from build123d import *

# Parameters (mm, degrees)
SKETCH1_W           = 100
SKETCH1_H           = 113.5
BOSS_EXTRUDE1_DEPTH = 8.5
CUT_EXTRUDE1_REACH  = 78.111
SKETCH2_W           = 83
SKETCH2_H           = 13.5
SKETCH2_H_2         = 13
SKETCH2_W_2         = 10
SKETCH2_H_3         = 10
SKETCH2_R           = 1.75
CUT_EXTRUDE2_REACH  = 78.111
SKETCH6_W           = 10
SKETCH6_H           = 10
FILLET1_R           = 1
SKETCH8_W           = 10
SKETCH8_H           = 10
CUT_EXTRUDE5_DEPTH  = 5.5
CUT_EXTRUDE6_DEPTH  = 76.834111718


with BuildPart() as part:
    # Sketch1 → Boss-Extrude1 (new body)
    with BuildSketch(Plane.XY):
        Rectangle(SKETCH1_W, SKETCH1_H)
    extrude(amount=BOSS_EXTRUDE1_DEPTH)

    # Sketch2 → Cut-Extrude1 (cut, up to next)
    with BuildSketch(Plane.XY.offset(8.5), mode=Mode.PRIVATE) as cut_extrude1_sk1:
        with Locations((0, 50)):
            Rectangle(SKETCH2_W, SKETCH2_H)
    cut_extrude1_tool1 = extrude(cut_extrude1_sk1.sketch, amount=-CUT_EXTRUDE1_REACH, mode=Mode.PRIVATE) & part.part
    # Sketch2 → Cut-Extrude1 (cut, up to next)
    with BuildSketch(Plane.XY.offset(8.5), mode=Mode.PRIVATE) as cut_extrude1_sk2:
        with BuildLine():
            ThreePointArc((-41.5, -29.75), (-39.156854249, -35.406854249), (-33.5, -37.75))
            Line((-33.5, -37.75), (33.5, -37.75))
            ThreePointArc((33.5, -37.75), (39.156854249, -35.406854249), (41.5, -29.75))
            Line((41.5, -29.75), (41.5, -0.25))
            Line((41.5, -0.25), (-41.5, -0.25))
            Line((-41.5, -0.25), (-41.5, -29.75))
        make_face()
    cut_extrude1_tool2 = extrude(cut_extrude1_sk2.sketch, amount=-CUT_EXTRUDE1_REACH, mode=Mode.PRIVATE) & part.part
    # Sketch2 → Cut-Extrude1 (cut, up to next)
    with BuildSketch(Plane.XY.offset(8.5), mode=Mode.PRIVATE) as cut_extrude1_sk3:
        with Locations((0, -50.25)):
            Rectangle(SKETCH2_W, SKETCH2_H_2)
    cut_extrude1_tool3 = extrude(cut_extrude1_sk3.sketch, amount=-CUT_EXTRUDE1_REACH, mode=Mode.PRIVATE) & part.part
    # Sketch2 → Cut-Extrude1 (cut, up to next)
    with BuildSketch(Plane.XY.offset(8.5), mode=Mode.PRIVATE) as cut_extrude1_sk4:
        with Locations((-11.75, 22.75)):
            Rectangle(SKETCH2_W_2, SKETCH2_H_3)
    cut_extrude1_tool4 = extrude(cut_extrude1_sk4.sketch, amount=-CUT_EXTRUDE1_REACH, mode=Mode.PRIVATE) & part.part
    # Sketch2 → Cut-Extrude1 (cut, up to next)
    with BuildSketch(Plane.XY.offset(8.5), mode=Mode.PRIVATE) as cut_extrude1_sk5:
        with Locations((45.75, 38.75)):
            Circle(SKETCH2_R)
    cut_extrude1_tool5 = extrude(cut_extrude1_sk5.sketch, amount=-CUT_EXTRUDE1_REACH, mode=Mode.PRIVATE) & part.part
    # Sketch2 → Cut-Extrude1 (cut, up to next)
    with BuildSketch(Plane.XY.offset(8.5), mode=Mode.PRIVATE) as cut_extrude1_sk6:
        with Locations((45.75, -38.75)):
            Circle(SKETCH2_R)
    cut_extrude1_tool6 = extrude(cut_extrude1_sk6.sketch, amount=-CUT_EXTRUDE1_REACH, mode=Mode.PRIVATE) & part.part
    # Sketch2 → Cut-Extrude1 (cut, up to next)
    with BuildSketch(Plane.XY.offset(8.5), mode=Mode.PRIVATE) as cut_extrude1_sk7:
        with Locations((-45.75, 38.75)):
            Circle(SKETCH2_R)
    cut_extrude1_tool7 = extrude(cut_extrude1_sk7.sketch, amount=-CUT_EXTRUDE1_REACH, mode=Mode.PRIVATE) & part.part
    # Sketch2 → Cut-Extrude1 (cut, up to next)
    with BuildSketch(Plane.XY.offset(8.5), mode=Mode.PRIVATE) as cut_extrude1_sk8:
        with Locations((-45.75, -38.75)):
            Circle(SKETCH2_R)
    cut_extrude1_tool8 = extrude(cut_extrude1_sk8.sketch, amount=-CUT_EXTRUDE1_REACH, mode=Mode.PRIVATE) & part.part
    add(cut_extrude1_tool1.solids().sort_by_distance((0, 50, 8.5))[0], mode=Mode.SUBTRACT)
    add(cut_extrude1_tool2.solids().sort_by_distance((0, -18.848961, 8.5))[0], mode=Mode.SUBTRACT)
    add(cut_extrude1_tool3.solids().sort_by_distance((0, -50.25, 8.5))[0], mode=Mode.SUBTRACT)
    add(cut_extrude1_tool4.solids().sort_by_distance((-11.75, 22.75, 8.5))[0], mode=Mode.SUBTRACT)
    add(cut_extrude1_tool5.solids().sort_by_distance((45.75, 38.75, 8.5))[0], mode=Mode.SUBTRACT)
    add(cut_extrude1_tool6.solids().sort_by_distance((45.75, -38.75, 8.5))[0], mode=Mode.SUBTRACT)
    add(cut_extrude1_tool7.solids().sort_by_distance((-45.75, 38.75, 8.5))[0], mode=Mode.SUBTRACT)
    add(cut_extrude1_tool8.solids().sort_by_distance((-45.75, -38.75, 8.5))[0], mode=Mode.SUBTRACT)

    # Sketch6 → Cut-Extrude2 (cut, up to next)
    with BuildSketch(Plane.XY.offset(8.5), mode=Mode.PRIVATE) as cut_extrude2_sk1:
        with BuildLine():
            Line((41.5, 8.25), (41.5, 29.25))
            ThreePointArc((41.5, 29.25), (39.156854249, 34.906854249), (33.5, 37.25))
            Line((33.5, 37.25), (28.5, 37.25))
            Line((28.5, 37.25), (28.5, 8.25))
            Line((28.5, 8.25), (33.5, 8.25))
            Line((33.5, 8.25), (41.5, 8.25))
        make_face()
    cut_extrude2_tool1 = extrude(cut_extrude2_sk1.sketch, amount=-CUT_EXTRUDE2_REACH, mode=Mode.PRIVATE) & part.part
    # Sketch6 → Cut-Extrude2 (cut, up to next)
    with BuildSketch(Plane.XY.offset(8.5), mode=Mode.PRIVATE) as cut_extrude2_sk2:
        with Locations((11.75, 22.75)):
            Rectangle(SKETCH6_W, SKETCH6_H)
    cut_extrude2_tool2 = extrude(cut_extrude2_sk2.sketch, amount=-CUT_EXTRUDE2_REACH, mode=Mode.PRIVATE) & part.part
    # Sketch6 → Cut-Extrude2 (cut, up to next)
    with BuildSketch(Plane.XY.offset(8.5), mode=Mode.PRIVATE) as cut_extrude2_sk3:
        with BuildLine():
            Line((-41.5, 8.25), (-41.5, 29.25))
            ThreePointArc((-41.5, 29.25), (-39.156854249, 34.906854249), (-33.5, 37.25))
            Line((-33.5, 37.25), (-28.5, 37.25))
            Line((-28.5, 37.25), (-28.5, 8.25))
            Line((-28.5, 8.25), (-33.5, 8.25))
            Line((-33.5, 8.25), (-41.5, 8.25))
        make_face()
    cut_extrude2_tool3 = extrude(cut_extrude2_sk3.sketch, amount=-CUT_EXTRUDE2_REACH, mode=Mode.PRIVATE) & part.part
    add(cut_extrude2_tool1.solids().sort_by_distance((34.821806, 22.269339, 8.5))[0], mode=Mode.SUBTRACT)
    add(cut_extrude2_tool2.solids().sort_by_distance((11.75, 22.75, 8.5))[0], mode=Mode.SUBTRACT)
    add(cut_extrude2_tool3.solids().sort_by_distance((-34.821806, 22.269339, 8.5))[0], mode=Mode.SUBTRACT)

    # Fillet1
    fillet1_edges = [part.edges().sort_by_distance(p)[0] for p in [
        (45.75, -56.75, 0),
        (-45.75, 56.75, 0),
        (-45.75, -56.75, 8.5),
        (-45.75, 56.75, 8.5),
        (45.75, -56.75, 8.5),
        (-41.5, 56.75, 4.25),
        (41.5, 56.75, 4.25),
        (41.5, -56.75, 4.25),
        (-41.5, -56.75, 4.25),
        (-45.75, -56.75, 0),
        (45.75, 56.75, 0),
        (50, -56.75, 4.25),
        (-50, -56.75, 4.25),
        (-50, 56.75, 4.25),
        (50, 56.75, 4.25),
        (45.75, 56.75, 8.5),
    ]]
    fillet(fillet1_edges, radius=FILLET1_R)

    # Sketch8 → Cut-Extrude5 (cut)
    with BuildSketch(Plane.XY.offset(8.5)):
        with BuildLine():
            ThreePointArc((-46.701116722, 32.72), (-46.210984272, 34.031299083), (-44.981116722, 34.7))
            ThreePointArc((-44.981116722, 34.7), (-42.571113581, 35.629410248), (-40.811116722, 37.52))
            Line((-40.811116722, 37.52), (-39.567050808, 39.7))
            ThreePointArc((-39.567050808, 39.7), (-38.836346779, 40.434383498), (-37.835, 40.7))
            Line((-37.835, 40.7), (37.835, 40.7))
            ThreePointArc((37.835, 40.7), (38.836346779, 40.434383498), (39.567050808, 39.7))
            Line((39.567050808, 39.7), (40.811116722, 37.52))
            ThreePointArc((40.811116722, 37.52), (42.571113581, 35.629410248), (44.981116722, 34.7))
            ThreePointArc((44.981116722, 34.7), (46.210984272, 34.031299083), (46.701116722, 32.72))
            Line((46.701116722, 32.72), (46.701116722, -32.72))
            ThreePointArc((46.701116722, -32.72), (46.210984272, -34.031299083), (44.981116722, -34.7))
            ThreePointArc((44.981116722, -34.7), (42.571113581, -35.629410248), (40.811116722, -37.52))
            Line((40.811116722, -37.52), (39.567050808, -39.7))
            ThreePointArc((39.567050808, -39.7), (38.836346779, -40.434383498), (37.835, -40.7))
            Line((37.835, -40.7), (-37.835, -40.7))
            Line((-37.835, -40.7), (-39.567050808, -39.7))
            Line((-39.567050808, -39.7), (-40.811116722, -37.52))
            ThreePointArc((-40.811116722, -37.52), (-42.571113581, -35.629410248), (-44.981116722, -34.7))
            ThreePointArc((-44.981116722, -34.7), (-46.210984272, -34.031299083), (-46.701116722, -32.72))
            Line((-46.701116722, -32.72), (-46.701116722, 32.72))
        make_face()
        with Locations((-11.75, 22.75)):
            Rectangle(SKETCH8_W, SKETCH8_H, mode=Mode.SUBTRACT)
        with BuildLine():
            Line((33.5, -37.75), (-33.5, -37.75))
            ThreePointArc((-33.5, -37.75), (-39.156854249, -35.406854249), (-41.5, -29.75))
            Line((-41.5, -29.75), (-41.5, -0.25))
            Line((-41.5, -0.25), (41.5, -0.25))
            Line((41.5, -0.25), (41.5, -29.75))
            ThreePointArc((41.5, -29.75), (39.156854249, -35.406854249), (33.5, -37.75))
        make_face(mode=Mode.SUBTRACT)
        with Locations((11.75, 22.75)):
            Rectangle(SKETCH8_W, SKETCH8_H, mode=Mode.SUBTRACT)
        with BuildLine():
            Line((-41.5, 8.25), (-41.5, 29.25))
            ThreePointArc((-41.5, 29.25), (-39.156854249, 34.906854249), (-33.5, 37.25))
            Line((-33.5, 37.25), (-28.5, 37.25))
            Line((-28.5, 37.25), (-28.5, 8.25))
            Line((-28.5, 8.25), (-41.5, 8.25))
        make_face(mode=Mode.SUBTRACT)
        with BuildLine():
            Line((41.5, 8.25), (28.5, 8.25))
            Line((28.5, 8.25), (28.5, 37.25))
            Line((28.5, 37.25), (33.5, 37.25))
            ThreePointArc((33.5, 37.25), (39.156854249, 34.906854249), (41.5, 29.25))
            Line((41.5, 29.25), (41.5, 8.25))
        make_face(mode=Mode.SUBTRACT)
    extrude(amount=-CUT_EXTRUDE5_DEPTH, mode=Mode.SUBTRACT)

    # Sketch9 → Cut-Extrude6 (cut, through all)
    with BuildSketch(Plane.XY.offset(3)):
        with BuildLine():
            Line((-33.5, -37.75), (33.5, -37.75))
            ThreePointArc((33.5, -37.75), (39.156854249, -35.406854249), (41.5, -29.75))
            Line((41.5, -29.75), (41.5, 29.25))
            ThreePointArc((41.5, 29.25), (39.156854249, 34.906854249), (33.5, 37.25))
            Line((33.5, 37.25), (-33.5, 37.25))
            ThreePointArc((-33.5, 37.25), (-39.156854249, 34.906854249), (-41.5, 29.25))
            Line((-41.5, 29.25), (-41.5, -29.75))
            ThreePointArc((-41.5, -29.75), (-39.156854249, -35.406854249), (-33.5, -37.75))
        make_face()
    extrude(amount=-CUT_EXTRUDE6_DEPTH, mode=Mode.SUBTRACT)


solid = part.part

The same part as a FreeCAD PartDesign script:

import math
import FreeCAD as App
import Part
import Sketcher
Q = App.Units.Quantity


def edges_at(feature, points):
    """Names of the edges that pass closest to the given points."""
    edges = feature.Shape.Edges
    near = lambda p: min(range(len(edges)), key=lambda i: edges[i].distToShape(Part.Vertex(*p))[0])
    return sorted({f"Edge{near(p) + 1}" for p in points})


def add_polygon(sketch, points):
    """Adds a closed chain of lines whose ends are joined by coincident constraints."""
    first, n = sketch.GeometryCount, len(points)
    for a, b in zip(points, points[1:] + points[:1]):
        sketch.addGeometry(Part.LineSegment(App.Vector(*a, 0), App.Vector(*b, 0)), False)
    for i in range(n):
        sketch.addConstraint(Sketcher.Constraint("Coincident", first + i, 2, first + (i + 1) % n, 1))

doc = App.newDocument("Part")
params = doc.addObject("Spreadsheet::Sheet", "Params")
for row, (alias, value) in enumerate([
    ("sketch1_width", "100 mm"),
    ("sketch1_height", "113.5 mm"),
    ("pad1_length", "8.5 mm"),
    ("sketch2_width", "83 mm"),
    ("sketch2_height", "13.5 mm"),
    ("sketch3_radius", "8 mm"),
    ("sketch3_width", "67 mm"),
    ("sketch3_height", "29.5 mm"),
    ("sketch4_width", "83 mm"),
    ("sketch4_height", "13 mm"),
    ("sketch5_width", "10 mm"),
    ("sketch6_diameter", "3.5 mm"),
    ("sketch7_diameter", "3.5 mm"),
    ("sketch8_diameter", "3.5 mm"),
    ("sketch9_diameter", "3.5 mm"),
    ("sketch10_radius", "8 mm"),
    ("sketch10_width", "5 mm"),
    ("sketch10_height", "21 mm"),
    ("sketch11_width", "10 mm"),
    ("sketch12_radius", "8 mm"),
    ("sketch12_width", "13 mm"),
    ("sketch12_height", "21 mm"),
    ("fillet_radius", "1 mm"),
    ("sketch13_radius", "2 mm"),
    ("sketch13_radius2", "8 mm"),
    ("sketch13_width", "67 mm"),
    ("sketch13_width2", "13 mm"),
    ("sketch13_width3", "10 mm"),
    ("pocket12_length", "5.5 mm"),
    ("sketch14_radius", "8 mm"),
    ("sketch14_width", "67 mm"),
    ("sketch14_height", "59 mm"),
], start=1):
    params.set(f"A{row}", alias)
    params.set(f"B{row}", "=" + value)
    params.setAlias(f"B{row}", alias)

body = doc.addObject("PartDesign::Body", "Body")

sketch1 = body.newObject("Sketcher::SketchObject", "Sketch")
sketch1.AttachmentSupport = (doc.getObject("XY_Plane"), [""])
sketch1.MapMode = "FlatFace"
add_polygon(sketch1, [(-50, 57), (-50, -57), (50, -57), (50, 57)])
sketch1.addConstraint([
    Sketcher.Constraint("Vertical", 0),
    Sketcher.Constraint("Horizontal", 1),
    Sketcher.Constraint("Vertical", 2),
    Sketcher.Constraint("Horizontal", 3),
    Sketcher.Constraint("Symmetric", 0, 2, 2, 2, -1, 1),
    Sketcher.Constraint("DistanceX", 1, 1, 1, 2, 100.0),
    Sketcher.Constraint("DistanceY", 0, 2, 0, 1, 113.5),
])
sketch1.setExpression("Constraints[9]", "Params.sketch1_width")
sketch1.setExpression("Constraints[10]", "Params.sketch1_height")
pad1 = body.newObject("PartDesign::Pad", "Pad")
pad1.Profile = sketch1
pad1.setExpression("Length", "Params.pad1_length")

sketch2 = body.newObject("Sketcher::SketchObject", "Sketch001")
sketch2.AttachmentSupport = (doc.getObject("XY_Plane"), [""])
sketch2.MapMode = "FlatFace"
sketch2.AttachmentOffset = App.Placement(App.Vector(0, 0, 8.5), App.Rotation())
add_polygon(sketch2, [(-42, 57), (-42, 43), (42, 43), (42, 57)])
sketch2.addConstraint([
    Sketcher.Constraint("Vertical", 0),
    Sketcher.Constraint("Horizontal", 1),
    Sketcher.Constraint("Vertical", 2),
    Sketcher.Constraint("Horizontal", 3),
    Sketcher.Constraint("DistanceX", 1, 1, 1, 2, 83.0),
    Sketcher.Constraint("DistanceY", 0, 2, 0, 1, 13.5),
    Sketcher.Constraint("DistanceX", 0, 2, -1, 1, 41.5),
    Sketcher.Constraint("DistanceY", -1, 1, 0, 2, 43.25),
])
sketch2.setExpression("Constraints[8]", "Params.sketch2_width")
sketch2.setExpression("Constraints[9]", "Params.sketch2_height")
pocket1 = body.newObject("PartDesign::Pocket", "Pocket")
pocket1.Profile = sketch2
pocket1.Type = "UpToFirst"

sketch3 = body.newObject("Sketcher::SketchObject", "Sketch002")
sketch3.AttachmentSupport = (doc.getObject("XY_Plane"), [""])
sketch3.MapMode = "FlatFace"
sketch3.AttachmentOffset = App.Placement(App.Vector(0, 0, 8.5), App.Rotation())
sketch3.addGeometry([
    Part.ArcOfCircle(Part.Circle(App.Vector(-33, -30, 0), App.Vector(0, 0, 1), 8), math.radians(-180), math.radians(-90)),
    Part.LineSegment(App.Vector(-34, -38, 0), App.Vector(34, -38, 0)),
    Part.ArcOfCircle(Part.Circle(App.Vector(33, -30, 0), App.Vector(0, 0, 1), 8), math.radians(-90), math.radians(0)),
    Part.LineSegment(App.Vector(42, -30, 0), App.Vector(42, 0, 0)),
    Part.LineSegment(App.Vector(42, 0, 0), App.Vector(-42, 0, 0)),
    Part.LineSegment(App.Vector(-42, 0, 0), App.Vector(-42, -30, 0)),
], False)
sketch3.addConstraint([
    Sketcher.Constraint("Tangent", 0, 2, 1, 1),
    Sketcher.Constraint("Tangent", 1, 2, 2, 1),
    Sketcher.Constraint("Tangent", 2, 2, 3, 1),
    Sketcher.Constraint("Coincident", 3, 2, 4, 1),
    Sketcher.Constraint("Coincident", 4, 2, 5, 1),
    Sketcher.Constraint("Tangent", 5, 2, 0, 1),
    Sketcher.Constraint("Horizontal", 1),
    Sketcher.Constraint("Vertical", 3),
    Sketcher.Constraint("Horizontal", 4),
    Sketcher.Constraint("Vertical", 5),
    Sketcher.Constraint("Equal", 0, 2),
    Sketcher.Constraint("Radius", 0, 8.0),
    Sketcher.Constraint("DistanceX", 1, 1, 1, 2, 67.0),
    Sketcher.Constraint("DistanceY", 3, 1, 3, 2, 29.5),
    Sketcher.Constraint("DistanceX", 0, 3, -1, 1, 33.5),
    Sketcher.Constraint("DistanceY", 0, 3, -1, 1, 29.75),
])
sketch3.setExpression("Constraints[11]", "Params.sketch3_radius")
sketch3.setExpression("Constraints[12]", "Params.sketch3_width")
sketch3.setExpression("Constraints[13]", "Params.sketch3_height")
pocket2 = body.newObject("PartDesign::Pocket", "Pocket001")
pocket2.Profile = sketch3
pocket2.Type = "UpToFirst"

sketch4 = body.newObject("Sketcher::SketchObject", "Sketch003")
sketch4.AttachmentSupport = (doc.getObject("XY_Plane"), [""])
sketch4.MapMode = "FlatFace"
sketch4.AttachmentOffset = App.Placement(App.Vector(0, 0, 8.5), App.Rotation())
add_polygon(sketch4, [(-42, -44), (-42, -57), (42, -57), (42, -44)])
sketch4.addConstraint([
    Sketcher.Constraint("Vertical", 0),
    Sketcher.Constraint("Horizontal", 1),
    Sketcher.Constraint("Vertical", 2),
    Sketcher.Constraint("Horizontal", 3),
    Sketcher.Constraint("DistanceX", 1, 1, 1, 2, 83.0),
    Sketcher.Constraint("DistanceY", 0, 2, 0, 1, 13.0),
    Sketcher.Constraint("DistanceX", 0, 2, -1, 1, 41.5),
    Sketcher.Constraint("DistanceY", 0, 2, -1, 1, 56.75),
])
sketch4.setExpression("Constraints[8]", "Params.sketch4_width")
sketch4.setExpression("Constraints[9]", "Params.sketch4_height")
pocket3 = body.newObject("PartDesign::Pocket", "Pocket002")
pocket3.Profile = sketch4
pocket3.Type = "UpToFirst"

sketch5 = body.newObject("Sketcher::SketchObject", "Sketch004")
sketch5.AttachmentSupport = (doc.getObject("XY_Plane"), [""])
sketch5.MapMode = "FlatFace"
sketch5.AttachmentOffset = App.Placement(App.Vector(0, 0, 8.5), App.Rotation())
add_polygon(sketch5, [(-17, 28), (-17, 18), (-7, 18), (-7, 28)])
sketch5.addConstraint([
    Sketcher.Constraint("Vertical", 0),
    Sketcher.Constraint("Horizontal", 1),
    Sketcher.Constraint("Vertical", 2),
    Sketcher.Constraint("Horizontal", 3),
    Sketcher.Constraint("Equal", 3, 0),
    Sketcher.Constraint("DistanceX", 1, 1, 1, 2, 10.0),
    Sketcher.Constraint("DistanceX", 0, 2, -1, 1, 16.75),
    Sketcher.Constraint("DistanceY", -1, 1, 0, 2, 17.75),
])
sketch5.setExpression("Constraints[9]", "Params.sketch5_width")
pocket4 = body.newObject("PartDesign::Pocket", "Pocket003")
pocket4.Profile = sketch5
pocket4.Type = "UpToFirst"

sketch6 = body.newObject("Sketcher::SketchObject", "Sketch005")
sketch6.AttachmentSupport = (doc.getObject("XY_Plane"), [""])
sketch6.MapMode = "FlatFace"
sketch6.AttachmentOffset = App.Placement(App.Vector(0, 0, 8.5), App.Rotation())
sketch6.addGeometry(Part.Circle(App.Vector(45.8, 38.8, 0), App.Vector(0, 0, 1), 1.8), False)
sketch6.addConstraint([
    Sketcher.Constraint("Diameter", 0, 3.5),
    Sketcher.Constraint("DistanceX", -1, 1, 0, 3, 45.75),
    Sketcher.Constraint("DistanceY", -1, 1, 0, 3, 38.75),
])
sketch6.setExpression("Constraints[0]", "Params.sketch6_diameter")
pocket5 = body.newObject("PartDesign::Pocket", "Pocket004")
pocket5.Profile = sketch6
pocket5.Type = "UpToFirst"

sketch7 = body.newObject("Sketcher::SketchObject", "Sketch006")
sketch7.AttachmentSupport = (doc.getObject("XY_Plane"), [""])
sketch7.MapMode = "FlatFace"
sketch7.AttachmentOffset = App.Placement(App.Vector(0, 0, 8.5), App.Rotation())
sketch7.addGeometry(Part.Circle(App.Vector(45.8, -38.8, 0), App.Vector(0, 0, 1), 1.8), False)
sketch7.addConstraint([
    Sketcher.Constraint("Diameter", 0, 3.5),
    Sketcher.Constraint("DistanceX", -1, 1, 0, 3, 45.75),
    Sketcher.Constraint("DistanceY", 0, 3, -1, 1, 38.75),
])
sketch7.setExpression("Constraints[0]", "Params.sketch7_diameter")
pocket6 = body.newObject("PartDesign::Pocket", "Pocket005")
pocket6.Profile = sketch7
pocket6.Type = "UpToFirst"

sketch8 = body.newObject("Sketcher::SketchObject", "Sketch007")
sketch8.AttachmentSupport = (doc.getObject("XY_Plane"), [""])
sketch8.MapMode = "FlatFace"
sketch8.AttachmentOffset = App.Placement(App.Vector(0, 0, 8.5), App.Rotation())
sketch8.addGeometry(Part.Circle(App.Vector(-45.8, 38.8, 0), App.Vector(0, 0, 1), 1.8), False)
sketch8.addConstraint([
    Sketcher.Constraint("Diameter", 0, 3.5),
    Sketcher.Constraint("DistanceX", 0, 3, -1, 1, 45.75),
    Sketcher.Constraint("DistanceY", -1, 1, 0, 3, 38.75),
])
sketch8.setExpression("Constraints[0]", "Params.sketch8_diameter")
pocket7 = body.newObject("PartDesign::Pocket", "Pocket006")
pocket7.Profile = sketch8
pocket7.Type = "UpToFirst"

sketch9 = body.newObject("Sketcher::SketchObject", "Sketch008")
sketch9.AttachmentSupport = (doc.getObject("XY_Plane"), [""])
sketch9.MapMode = "FlatFace"
sketch9.AttachmentOffset = App.Placement(App.Vector(0, 0, 8.5), App.Rotation())
sketch9.addGeometry(Part.Circle(App.Vector(-45.8, -38.8, 0), App.Vector(0, 0, 1), 1.8), False)
sketch9.addConstraint([
    Sketcher.Constraint("Diameter", 0, 3.5),
    Sketcher.Constraint("DistanceX", 0, 3, -1, 1, 45.75),
    Sketcher.Constraint("DistanceY", 0, 3, -1, 1, 38.75),
])
sketch9.setExpression("Constraints[0]", "Params.sketch9_diameter")
pocket8 = body.newObject("PartDesign::Pocket", "Pocket007")
pocket8.Profile = sketch9
pocket8.Type = "UpToFirst"

sketch10 = body.newObject("Sketcher::SketchObject", "Sketch009")
sketch10.AttachmentSupport = (doc.getObject("XY_Plane"), [""])
sketch10.MapMode = "FlatFace"
sketch10.AttachmentOffset = App.Placement(App.Vector(0, 0, 8.5), App.Rotation())
sketch10.addGeometry([
    Part.LineSegment(App.Vector(42, 8, 0), App.Vector(42, 29, 0)),
    Part.ArcOfCircle(Part.Circle(App.Vector(33, 29, 0), App.Vector(0, 0, 1), 8), math.radians(0), math.radians(90)),
    Part.LineSegment(App.Vector(34, 37, 0), App.Vector(28, 37, 0)),
    Part.LineSegment(App.Vector(28, 37, 0), App.Vector(28, 8, 0)),
    Part.LineSegment(App.Vector(28, 8, 0), App.Vector(42, 8, 0)),
], False)
sketch10.addConstraint([
    Sketcher.Constraint("Tangent", 0, 2, 1, 1),
    Sketcher.Constraint("Tangent", 1, 2, 2, 1),
    Sketcher.Constraint("Coincident", 2, 2, 3, 1),
    Sketcher.Constraint("Coincident", 3, 2, 4, 1),
    Sketcher.Constraint("Coincident", 4, 2, 0, 1),
    Sketcher.Constraint("Vertical", 0),
    Sketcher.Constraint("Horizontal", 2),
    Sketcher.Constraint("Vertical", 3),
    Sketcher.Constraint("Horizontal", 4),
    Sketcher.Constraint("Radius", 1, 8.0),
    Sketcher.Constraint("DistanceX", 2, 2, 2, 1, 5.0),
    Sketcher.Constraint("DistanceY", 0, 1, 0, 2, 21.0),
    Sketcher.Constraint("DistanceX", -1, 1, 1, 3, 33.5),
    Sketcher.Constraint("DistanceY", -1, 1, 1, 3, 29.25),
])
sketch10.setExpression("Constraints[9]", "Params.sketch10_radius")
sketch10.setExpression("Constraints[10]", "Params.sketch10_width")
sketch10.setExpression("Constraints[11]", "Params.sketch10_height")
pocket9 = body.newObject("PartDesign::Pocket", "Pocket008")
pocket9.Profile = sketch10
pocket9.Type = "UpToFirst"

sketch11 = body.newObject("Sketcher::SketchObject", "Sketch010")
sketch11.AttachmentSupport = (doc.getObject("XY_Plane"), [""])
sketch11.MapMode = "FlatFace"
sketch11.AttachmentOffset = App.Placement(App.Vector(0, 0, 8.5), App.Rotation())
add_polygon(sketch11, [(7, 28), (7, 18), (17, 18), (17, 28)])
sketch11.addConstraint([
    Sketcher.Constraint("Vertical", 0),
    Sketcher.Constraint("Horizontal", 1),
    Sketcher.Constraint("Vertical", 2),
    Sketcher.Constraint("Horizontal", 3),
    Sketcher.Constraint("Equal", 3, 0),
    Sketcher.Constraint("DistanceX", 1, 1, 1, 2, 10.0),
    Sketcher.Constraint("DistanceX", -1, 1, 0, 2, 6.75),
    Sketcher.Constraint("DistanceY", -1, 1, 0, 2, 17.75),
])
sketch11.setExpression("Constraints[9]", "Params.sketch11_width")
pocket10 = body.newObject("PartDesign::Pocket", "Pocket009")
pocket10.Profile = sketch11
pocket10.Type = "UpToFirst"

sketch12 = body.newObject("Sketcher::SketchObject", "Sketch011")
sketch12.AttachmentSupport = (doc.getObject("XY_Plane"), [""])
sketch12.MapMode = "FlatFace"
sketch12.AttachmentOffset = App.Placement(App.Vector(0, 0, 8.5), App.Rotation())
sketch12.addGeometry([
    Part.LineSegment(App.Vector(-42, 29, 0), App.Vector(-42, 8, 0)),
    Part.LineSegment(App.Vector(-42, 8, 0), App.Vector(-28, 8, 0)),
    Part.LineSegment(App.Vector(-28, 8, 0), App.Vector(-28, 37, 0)),
    Part.LineSegment(App.Vector(-28, 37, 0), App.Vector(-34, 37, 0)),
    Part.ArcOfCircle(Part.Circle(App.Vector(-33, 29, 0), App.Vector(0, 0, 1), 8), math.radians(90), math.radians(180)),
], False)
sketch12.addConstraint([
    Sketcher.Constraint("Coincident", 0, 2, 1, 1),
    Sketcher.Constraint("Coincident", 1, 2, 2, 1),
    Sketcher.Constraint("Coincident", 2, 2, 3, 1),
    Sketcher.Constraint("Tangent", 3, 2, 4, 1),
    Sketcher.Constraint("Tangent", 4, 2, 0, 1),
    Sketcher.Constraint("Vertical", 0),
    Sketcher.Constraint("Horizontal", 1),
    Sketcher.Constraint("Vertical", 2),
    Sketcher.Constraint("Horizontal", 3),
    Sketcher.Constraint("Radius", 4, 8.0),
    Sketcher.Constraint("DistanceX", 1, 1, 1, 2, 13.0),
    Sketcher.Constraint("DistanceY", 0, 2, 0, 1, 21.0),
    Sketcher.Constraint("DistanceX", 4, 3, -1, 1, 33.5),
    Sketcher.Constraint("DistanceY", -1, 1, 4, 3, 29.25),
])
sketch12.setExpression("Constraints[9]", "Params.sketch12_radius")
sketch12.setExpression("Constraints[10]", "Params.sketch12_width")
sketch12.setExpression("Constraints[11]", "Params.sketch12_height")
pocket11 = body.newObject("PartDesign::Pocket", "Pocket010")
pocket11.Profile = sketch12
pocket11.Type = "UpToFirst"
doc.recompute()

fillet = body.newObject("PartDesign::Fillet", "Fillet")
fillet.Base = (pocket11, edges_at(pocket11, [
    (45.75, -56.75, 0),
    (-45.75, 56.75, 0),
    (-45.75, -56.75, 8.5),
    (-45.75, 56.75, 8.5),
    (45.75, -56.75, 8.5),
    (-41.5, 56.75, 4.25),
    (41.5, 56.75, 4.25),
    (41.5, -56.75, 4.25),
    (-41.5, -56.75, 4.25),
    (-45.75, -56.75, 0),
    (45.75, 56.75, 0),
    (50, -56.75, 4.25),
    (-50, -56.75, 4.25),
    (-50, 56.75, 4.25),
    (50, 56.75, 4.25),
    (45.75, 56.75, 8.5),
]))
fillet.setExpression("Radius", "Params.fillet_radius")

sketch13 = body.newObject("Sketcher::SketchObject", "Sketch012")
sketch13.AttachmentSupport = (doc.getObject("XY_Plane"), [""])
sketch13.MapMode = "FlatFace"
sketch13.AttachmentOffset = App.Placement(App.Vector(0, 0, 8.5), App.Rotation())
sketch13.addGeometry(Part.ArcOfCircle(Part.Circle(App.Vector(-44.701117, 32.719697, 0), App.Vector(0, 0, 1), 2), math.radians(98.047846), math.radians(179.991319)), False)
sketch13.addGeometry(Part.LineSegment(App.Vector(-46.701117, 32.72, 0), App.Vector(-46.701117, -32.72, 0)), False)
sketch13.addGeometry(Part.ArcOfCircle(Part.Circle(App.Vector(-44.701117, -32.719697, 0), App.Vector(0, 0, 1), 2), math.radians(-179.991319), math.radians(-98.047846)), False)
sketch13.addGeometry(Part.ArcOfCircle(Part.Circle(App.Vector(-45.792201, -40.392508, 0), App.Vector(0, 0, 1), 5.75), math.radians(29.971326), math.radians(81.89092)), False)
sketch13.addGeometry(Part.LineSegment(App.Vector(-40.811117, -37.52, 0), App.Vector(-39.567051, -39.7, 0)), False)
sketch13.addGeometry(Part.LineSegment(App.Vector(-39.567051, -39.7, 0), App.Vector(-37.835, -40.7, 0)), False)
sketch13.addGeometry(Part.LineSegment(App.Vector(-37.835, -40.7, 0), App.Vector(37.835, -40.7, 0)), False)
sketch13.addGeometry(Part.ArcOfCircle(Part.Circle(App.Vector(37.844959, -38.71725, 0), App.Vector(0, 0, 1), 1.982775), math.radians(-90.287788), math.radians(-29.712212)), False)
sketch13.addGeometry(Part.LineSegment(App.Vector(39.567051, -39.7, 0), App.Vector(40.811117, -37.52, 0)), False)
sketch13.addGeometry(Part.ArcOfCircle(Part.Circle(App.Vector(45.792201, -40.392508, 0), App.Vector(0, 0, 1), 5.75), math.radians(98.10908), math.radians(150.028674)), False)
sketch13.addGeometry(Part.ArcOfCircle(Part.Circle(App.Vector(44.701117, -32.719697, 0), App.Vector(0, 0, 1), 2), math.radians(-81.952154), math.radians(-0.008681)), False)
sketch13.addGeometry(Part.LineSegment(App.Vector(46.701117, -32.72, 0), App.Vector(46.701117, 32.72, 0)), False)
sketch13.addGeometry(Part.ArcOfCircle(Part.Circle(App.Vector(44.701117, 32.719697, 0), App.Vector(0, 0, 1), 2), math.radians(0.008681), math.radians(81.952154)), False)
sketch13.addGeometry(Part.ArcOfCircle(Part.Circle(App.Vector(45.792201, 40.392508, 0), App.Vector(0, 0, 1), 5.75), math.radians(-150.028674), math.radians(-98.10908)), False)
sketch13.addGeometry(Part.LineSegment(App.Vector(40.811117, 37.52, 0), App.Vector(39.567051, 39.7, 0)), False)
sketch13.addGeometry(Part.ArcOfCircle(Part.Circle(App.Vector(37.844959, 38.71725, 0), App.Vector(0, 0, 1), 1.982775), math.radians(29.712212), math.radians(90.287788)), False)
sketch13.addGeometry(Part.LineSegment(App.Vector(37.835, 40.7, 0), App.Vector(-37.835, 40.7, 0)), False)
sketch13.addGeometry(Part.ArcOfCircle(Part.Circle(App.Vector(-37.844959, 38.71725, 0), App.Vector(0, 0, 1), 1.982775), math.radians(89.712212), math.radians(150.287788)), False)
sketch13.addGeometry(Part.LineSegment(App.Vector(-39.567051, 39.7, 0), App.Vector(-40.811117, 37.52, 0)), False)
sketch13.addGeometry(Part.ArcOfCircle(Part.Circle(App.Vector(-45.792201, 40.392508, 0), App.Vector(0, 0, 1), 5.75), math.radians(-81.89092), math.radians(-29.971326)), False)
sketch13.addGeometry(Part.LineSegment(App.Vector(33.5, -37.75, 0), App.Vector(-33.5, -37.75, 0)), False)
sketch13.addGeometry(Part.ArcOfCircle(Part.Circle(App.Vector(-33.5, -29.75, 0), App.Vector(0, 0, 1), 8), math.radians(-180), math.radians(-90)), False)
sketch13.addGeometry(Part.LineSegment(App.Vector(-41.5, -29.75, 0), App.Vector(-41.5, -0.25, 0)), False)
sketch13.addGeometry(Part.LineSegment(App.Vector(-41.5, -0.25, 0), App.Vector(41.5, -0.25, 0)), False)
sketch13.addGeometry(Part.LineSegment(App.Vector(41.5, -0.25, 0), App.Vector(41.5, -29.75, 0)), False)
sketch13.addGeometry(Part.ArcOfCircle(Part.Circle(App.Vector(33.5, -29.75, 0), App.Vector(0, 0, 1), 8), math.radians(-90), math.radians(0)), False)
sketch13.addGeometry(Part.LineSegment(App.Vector(41.5, 8.25, 0), App.Vector(28.5, 8.25, 0)), False)
sketch13.addGeometry(Part.LineSegment(App.Vector(28.5, 8.25, 0), App.Vector(28.5, 37.25, 0)), False)
sketch13.addGeometry(Part.LineSegment(App.Vector(28.5, 37.25, 0), App.Vector(33.5, 37.25, 0)), False)
sketch13.addGeometry(Part.ArcOfCircle(Part.Circle(App.Vector(33.5, 29.25, 0), App.Vector(0, 0, 1), 8), math.radians(0), math.radians(90)), False)
sketch13.addGeometry(Part.LineSegment(App.Vector(41.5, 29.25, 0), App.Vector(41.5, 8.25, 0)), False)
add_polygon(sketch13, [(6.75, 17.75), (6.75, 27.75), (16.75, 27.75), (16.75, 17.75)])
add_polygon(sketch13, [(-16.75, 17.75), (-16.75, 27.75), (-6.75, 27.75), (-6.75, 17.75)])
sketch13.addGeometry(Part.LineSegment(App.Vector(-41.5, 8.25, 0), App.Vector(-41.5, 29.25, 0)), False)
sketch13.addGeometry(Part.ArcOfCircle(Part.Circle(App.Vector(-33.5, 29.25, 0), App.Vector(0, 0, 1), 8), math.radians(90), math.radians(180)), False)
sketch13.addGeometry(Part.LineSegment(App.Vector(-33.5, 37.25, 0), App.Vector(-28.5, 37.25, 0)), False)
sketch13.addGeometry(Part.LineSegment(App.Vector(-28.5, 37.25, 0), App.Vector(-28.5, 8.25, 0)), False)
sketch13.addGeometry(Part.LineSegment(App.Vector(-28.5, 8.25, 0), App.Vector(-41.5, 8.25, 0)), False)
sketch13.addConstraint([
    Sketcher.Constraint("Coincident", 0, 2, 1, 1),
    Sketcher.Constraint("Coincident", 1, 2, 2, 1),
    Sketcher.Constraint("Coincident", 2, 2, 3, 2),
    Sketcher.Constraint("Coincident", 3, 1, 4, 1),
    Sketcher.Constraint("Coincident", 4, 2, 5, 1),
    Sketcher.Constraint("Coincident", 5, 2, 6, 1),
    Sketcher.Constraint("Coincident", 6, 2, 7, 1),
    Sketcher.Constraint("Tangent", 7, 2, 8, 1),
    Sketcher.Constraint("Coincident", 8, 2, 9, 2),
    Sketcher.Constraint("Coincident", 9, 1, 10, 1),
    Sketcher.Constraint("Coincident", 10, 2, 11, 1),
    Sketcher.Constraint("Coincident", 11, 2, 12, 1),
    Sketcher.Constraint("Coincident", 12, 2, 13, 2),
    Sketcher.Constraint("Coincident", 13, 1, 14, 1),
    Sketcher.Constraint("Tangent", 14, 2, 15, 1),
    Sketcher.Constraint("Coincident", 15, 2, 16, 1),
    Sketcher.Constraint("Coincident", 16, 2, 17, 1),
    Sketcher.Constraint("Tangent", 17, 2, 18, 1),
    Sketcher.Constraint("Coincident", 18, 2, 19, 2),
    Sketcher.Constraint("Coincident", 19, 1, 0, 1),
    Sketcher.Constraint("Tangent", 20, 2, 21, 2),
    Sketcher.Constraint("Tangent", 21, 1, 22, 1),
    Sketcher.Constraint("Coincident", 22, 2, 23, 1),
    Sketcher.Constraint("Coincident", 23, 2, 24, 1),
    Sketcher.Constraint("Tangent", 24, 2, 25, 2),
    Sketcher.Constraint("Tangent", 25, 1, 20, 1),
    Sketcher.Constraint("Coincident", 26, 2, 27, 1),
    Sketcher.Constraint("Coincident", 27, 2, 28, 1),
    Sketcher.Constraint("Tangent", 28, 2, 29, 2),
    Sketcher.Constraint("Tangent", 29, 1, 30, 1),
    Sketcher.Constraint("Coincident", 30, 2, 26, 1),
    Sketcher.Constraint("Tangent", 39, 2, 40, 2),
    Sketcher.Constraint("Tangent", 40, 1, 41, 1),
    Sketcher.Constraint("Coincident", 41, 2, 42, 1),
    Sketcher.Constraint("Coincident", 42, 2, 43, 1),
    Sketcher.Constraint("Coincident", 43, 2, 39, 1),
    Sketcher.Constraint("Vertical", 1),
    Sketcher.Constraint("Horizontal", 6),
    Sketcher.Constraint("Vertical", 11),
    Sketcher.Constraint("Horizontal", 16),
    Sketcher.Constraint("Horizontal", 20),
    Sketcher.Constraint("Vertical", 22),
    Sketcher.Constraint("Horizontal", 23),
    Sketcher.Constraint("Vertical", 24),
    Sketcher.Constraint("Horizontal", 26),
    Sketcher.Constraint("Vertical", 27),
    Sketcher.Constraint("Horizontal", 28),
    Sketcher.Constraint("Vertical", 30),
    Sketcher.Constraint("Vertical", 31),
    Sketcher.Constraint("Horizontal", 32),
    Sketcher.Constraint("Vertical", 33),
    Sketcher.Constraint("Horizontal", 34),
    Sketcher.Constraint("Vertical", 35),
    Sketcher.Constraint("Horizontal", 36),
    Sketcher.Constraint("Vertical", 37),
    Sketcher.Constraint("Horizontal", 38),
    Sketcher.Constraint("Vertical", 39),
    Sketcher.Constraint("Horizontal", 41),
    Sketcher.Constraint("Vertical", 42),
    Sketcher.Constraint("Horizontal", 43),
    Sketcher.Constraint("Equal", 0, 2),
    Sketcher.Constraint("Equal", 3, 9),
    Sketcher.Constraint("Equal", 2, 10),
    Sketcher.Constraint("Equal", 10, 12),
    Sketcher.Constraint("Equal", 9, 13),
    Sketcher.Constraint("Equal", 7, 15),
    Sketcher.Constraint("Equal", 15, 17),
    Sketcher.Constraint("Equal", 13, 19),
    Sketcher.Constraint("Equal", 21, 25),
    Sketcher.Constraint("Equal", 25, 29),
    Sketcher.Constraint("Equal", 29, 40),
    Sketcher.Constraint("Symmetric", 0, 3, 10, 3, -1, 1),
    Sketcher.Constraint("Symmetric", 3, 3, 13, 3, -1, 1),
    Sketcher.Constraint("Symmetric", 7, 3, 17, 3, -1, 1),
    Sketcher.Constraint("Symmetric", 9, 3, 19, 3, -1, 1),
    Sketcher.Constraint("Symmetric", 4, 2, 14, 2, -1, 1),
    Sketcher.Constraint("Symmetric", 5, 2, 15, 2, -1, 1),
    Sketcher.Constraint("Symmetric", 3, 3, 9, 3, -2),
    Sketcher.Constraint("Symmetric", 15, 3, 17, 3, -2),
    Sketcher.Constraint("Symmetric", 29, 3, 40, 3, -2),
    Sketcher.Constraint("Symmetric", 32, 2, 35, 2, -2),
    Sketcher.Constraint("Symmetric", 34, 2, 37, 2, -2),
    Sketcher.Constraint("Symmetric", 26, 2, 42, 2, -2),
    Sketcher.Constraint("Parallel", 4, 14),
    Sketcher.Constraint("Parallel", 8, 18),
    Sketcher.Constraint("Horizontal", 3, 1, 8, 2),
    Sketcher.Constraint("Horizontal", 2, 2, 9, 1),
    Sketcher.Constraint("Horizontal", 1, 2, 10, 2),
    Sketcher.Constraint("Horizontal", 0, 2, 11, 2),
    Sketcher.Constraint("Horizontal", 12, 2, 19, 1),
    Sketcher.Constraint("Vertical", 25, 3, 29, 3),
    Sketcher.Constraint("Vertical", 21, 3, 40, 3),
    Sketcher.Constraint("Equal", 38, 31),
    Sketcher.Constraint("Radius", 0, 2.0),
    Sketcher.Constraint("Radius", 21, 8.0),
    Sketcher.Constraint("DistanceX", 20, 2, 20, 1, 67.0),
    Sketcher.Constraint("DistanceX", 26, 2, 26, 1, 13.0),
    Sketcher.Constraint("DistanceX", 32, 1, 32, 2, 10.0),
    Sketcher.Constraint("DistanceY", 27, 1, 27, 2, 29.0),
    Sketcher.Constraint("Angle", 5, Q("-30 deg")),
    Sketcher.Constraint("Radius", 3, 5.75),
    Sketcher.Constraint("Distance", 5, 2.0),
    Sketcher.Constraint("DistanceY", 22, 1, 22, 2, 29.5),
    Sketcher.Constraint("DistanceY", 25, 3, 29, 3, 59.0),
    Sketcher.Constraint("DistanceY", 4, 2, 2, 2, 5.0),
    Sketcher.Constraint("DistanceX", 6, 1, 6, 2, 75.67),
    Sketcher.Constraint("DistanceY", 1, 2, 1, 1, 65.44),
    Sketcher.Constraint("DistanceY", 2, 2, -1, 1, 34.7),
    Sketcher.Constraint("DistanceY", 3, 1, 1, 2, 4.8),
    Sketcher.Constraint("DistanceY", 11, 2, 13, 1, 4.8),
    Sketcher.Constraint("DistanceY", 31, 2, 27, 2, 9.5),
    Sketcher.Constraint("DistanceX", 35, 2, 31, 2, 23.5),
    Sketcher.Constraint("Distance", 4, 2.51),
    Sketcher.Constraint("DistanceY", 21, 3, -1, 1, 29.75),
    Sketcher.Constraint("DistanceX", 2, 2, 2, 3, 0.28),
    Sketcher.Constraint("DistanceX", 2, 2, 3, 1, 4.17),
])
sketch13.setExpression("Constraints[101]", "Params.sketch13_radius")
sketch13.setExpression("Constraints[102]", "Params.sketch13_radius2")
sketch13.setExpression("Constraints[103]", "Params.sketch13_width")
sketch13.setExpression("Constraints[104]", "Params.sketch13_width2")
sketch13.setExpression("Constraints[105]", "Params.sketch13_width3")
pocket12 = body.newObject("PartDesign::Pocket", "Pocket011")
pocket12.Profile = sketch13
pocket12.setExpression("Length", "Params.pocket12_length")

sketch14 = body.newObject("Sketcher::SketchObject", "Sketch013")
sketch14.AttachmentSupport = (doc.getObject("XY_Plane"), [""])
sketch14.MapMode = "FlatFace"
sketch14.AttachmentOffset = App.Placement(App.Vector(0, 0, 3), App.Rotation())
sketch14.addGeometry([
    Part.LineSegment(App.Vector(-34, -38, 0), App.Vector(34, -38, 0)),
    Part.ArcOfCircle(Part.Circle(App.Vector(33, -30, 0), App.Vector(0, 0, 1), 8), math.radians(-90), math.radians(0)),
    Part.LineSegment(App.Vector(42, -30, 0), App.Vector(42, 29, 0)),
    Part.ArcOfCircle(Part.Circle(App.Vector(33, 29, 0), App.Vector(0, 0, 1), 8), math.radians(0), math.radians(90)),
    Part.LineSegment(App.Vector(34, 37, 0), App.Vector(-34, 37, 0)),
    Part.ArcOfCircle(Part.Circle(App.Vector(-33, 29, 0), App.Vector(0, 0, 1), 8), math.radians(90), math.radians(180)),
    Part.LineSegment(App.Vector(-42, 29, 0), App.Vector(-42, -30, 0)),
    Part.ArcOfCircle(Part.Circle(App.Vector(-33, -30, 0), App.Vector(0, 0, 1), 8), math.radians(-180), math.radians(-90)),
], False)
sketch14.addConstraint([
    Sketcher.Constraint("Tangent", 0, 2, 1, 1),
    Sketcher.Constraint("Tangent", 1, 2, 2, 1),
    Sketcher.Constraint("Tangent", 2, 2, 3, 1),
    Sketcher.Constraint("Tangent", 3, 2, 4, 1),
    Sketcher.Constraint("Tangent", 4, 2, 5, 1),
    Sketcher.Constraint("Tangent", 5, 2, 6, 1),
    Sketcher.Constraint("Tangent", 6, 2, 7, 1),
    Sketcher.Constraint("Tangent", 7, 2, 0, 1),
    Sketcher.Constraint("Horizontal", 0),
    Sketcher.Constraint("Vertical", 2),
    Sketcher.Constraint("Horizontal", 4),
    Sketcher.Constraint("Vertical", 6),
    Sketcher.Constraint("Equal", 1, 3),
    Sketcher.Constraint("Equal", 3, 5),
    Sketcher.Constraint("Equal", 5, 7),
    Sketcher.Constraint("Radius", 1, 8.0),
    Sketcher.Constraint("DistanceX", 0, 1, 0, 2, 67.0),
    Sketcher.Constraint("DistanceY", 2, 1, 2, 2, 59.0),
    Sketcher.Constraint("DistanceX", -1, 1, 1, 3, 33.5),
    Sketcher.Constraint("DistanceY", 1, 3, -1, 1, 29.75),
])
sketch14.setExpression("Constraints[15]", "Params.sketch14_radius")
sketch14.setExpression("Constraints[16]", "Params.sketch14_width")
sketch14.setExpression("Constraints[17]", "Params.sketch14_height")
pocket13 = body.newObject("PartDesign::Pocket", "Pocket012")
pocket13.Profile = sketch14
pocket13.Type = "ThroughAll"

doc.recompute()
